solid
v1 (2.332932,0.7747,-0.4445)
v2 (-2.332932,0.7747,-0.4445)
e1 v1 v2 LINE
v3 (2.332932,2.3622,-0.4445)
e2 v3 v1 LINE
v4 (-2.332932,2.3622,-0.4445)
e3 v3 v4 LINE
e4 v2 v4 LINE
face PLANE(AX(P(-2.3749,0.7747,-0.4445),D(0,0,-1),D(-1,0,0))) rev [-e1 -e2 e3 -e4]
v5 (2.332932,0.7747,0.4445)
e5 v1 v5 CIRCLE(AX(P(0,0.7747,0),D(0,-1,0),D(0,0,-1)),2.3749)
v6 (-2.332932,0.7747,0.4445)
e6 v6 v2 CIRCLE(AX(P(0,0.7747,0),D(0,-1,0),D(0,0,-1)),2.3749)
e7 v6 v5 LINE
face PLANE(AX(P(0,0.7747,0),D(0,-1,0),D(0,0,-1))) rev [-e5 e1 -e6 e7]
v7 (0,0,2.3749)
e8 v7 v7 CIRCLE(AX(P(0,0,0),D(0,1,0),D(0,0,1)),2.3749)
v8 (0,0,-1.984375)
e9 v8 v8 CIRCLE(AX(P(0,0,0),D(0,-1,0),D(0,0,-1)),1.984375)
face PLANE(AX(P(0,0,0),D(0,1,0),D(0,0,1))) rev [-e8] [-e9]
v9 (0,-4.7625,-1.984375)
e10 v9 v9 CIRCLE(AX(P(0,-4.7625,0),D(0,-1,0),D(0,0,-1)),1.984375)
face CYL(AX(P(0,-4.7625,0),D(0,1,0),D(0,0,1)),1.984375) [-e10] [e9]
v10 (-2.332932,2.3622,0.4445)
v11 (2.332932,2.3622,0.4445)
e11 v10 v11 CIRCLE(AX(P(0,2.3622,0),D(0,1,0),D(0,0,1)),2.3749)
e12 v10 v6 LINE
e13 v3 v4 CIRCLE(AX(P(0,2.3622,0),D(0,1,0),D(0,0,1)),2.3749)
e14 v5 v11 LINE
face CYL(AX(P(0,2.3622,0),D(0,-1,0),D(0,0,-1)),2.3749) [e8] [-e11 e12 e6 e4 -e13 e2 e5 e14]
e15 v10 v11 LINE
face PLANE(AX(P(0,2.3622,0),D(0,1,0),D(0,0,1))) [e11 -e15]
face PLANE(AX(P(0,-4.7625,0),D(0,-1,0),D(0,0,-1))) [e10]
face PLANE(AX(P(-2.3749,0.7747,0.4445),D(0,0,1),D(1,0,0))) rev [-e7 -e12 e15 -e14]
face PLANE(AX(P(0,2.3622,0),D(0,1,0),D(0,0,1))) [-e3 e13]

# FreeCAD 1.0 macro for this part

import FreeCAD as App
import Part
import Sketcher

V = App.Vector
Q = App.Units.Quantity

doc = App.newDocument("Part")
body = doc.addObject("PartDesign::Body", "Body")

# Sketch on XZ plane
sketch1 = body.newObject("Sketcher::SketchObject", "Sketch")
sketch1.AttachmentSupport = (doc.getObject("XZ_Plane"), [""])
sketch1.MapMode = "FlatFace"
sketch1.addGeometry(Part.Circle(V(0, 0, 0), V(0, 0, 1), 2.4), False)
sketch1.addConstraint(Sketcher.Constraint("Coincident", 0, 3, -1, 1))
sketch1.addConstraint(Sketcher.Constraint("Diameter", 0, Q("0.187 in")))
pad1 = body.newObject("PartDesign::Pad", "Pad")
pad1.Profile = sketch1
pad1.Length = Q("0.093 in")
pad1.Reversed = True

# Sketch on XZ plane
sketch2 = body.newObject("Sketcher::SketchObject", "Sketch001")
sketch2.AttachmentSupport = (doc.getObject("XZ_Plane"), [""])
sketch2.MapMode = "FlatFace"
sketch2.addGeometry(Part.Circle(V(0, 0, 0), V(0, 0, 1), 2), False)
sketch2.addConstraint(Sketcher.Constraint("Coincident", 0, 3, -1, 1))
sketch2.addConstraint(Sketcher.Constraint("Diameter", 0, Q("0.15625 in")))
pad2 = body.newObject("PartDesign::Pad", "Pad001")
pad2.Profile = sketch2
pad2.Length = Q("0.1875 in")

# Sketch on XZ plane
sketch3 = body.newObject("Sketcher::SketchObject", "Sketch002")
sketch3.AttachmentSupport = (doc.getObject("XZ_Plane"), [""])
sketch3.MapMode = "FlatFace"
sketch3.AttachmentOffset = App.Placement(V(0, 0, -0.093 * 25.4), App.Rotation())
sketch3.addGeometry(Part.LineSegment(V(-2.4, -0.4, 0), V(-2.4, 0.4, 0)), False)
sketch3.addGeometry(Part.LineSegment(V(-2.4, 0.4, 0), V(2.4, 0.4, 0)), False)
sketch3.addGeometry(Part.LineSegment(V(2.4, 0.4, 0), V(2.4, -0.4, 0)), False)
sketch3.addGeometry(Part.LineSegment(V(2.4, -0.4, 0), V(-2.4, -0.4, 0)), False)
sketch3.addConstraint(Sketcher.Constraint("Coincident", 0, 2, 1, 1))
sketch3.addConstraint(Sketcher.Constraint("Coincident", 1, 2, 2, 1))
sketch3.addConstraint(Sketcher.Constraint("Coincident", 2, 2, 3, 1))
sketch3.addConstraint(Sketcher.Constraint("Coincident", 3, 2, 0, 1))
sketch3.addConstraint(Sketcher.Constraint("Vertical", 0))
sketch3.addConstraint(Sketcher.Constraint("Horizontal", 1))
sketch3.addConstraint(Sketcher.Constraint("Vertical", 2))
sketch3.addConstraint(Sketcher.Constraint("Horizontal", 3))
sketch3.addConstraint(Sketcher.Constraint("Symmetric", 0, 2, 2, 2, -1, 1))
sketch3.addConstraint(Sketcher.Constraint("DistanceX", 1, 1, 1, 2, Q("0.187 in")))
sketch3.addConstraint(Sketcher.Constraint("DistanceY", 0, 1, 0, 2, Q("0.035 in")))
pocket1 = body.newObject("PartDesign::Pocket", "Pocket")
pocket1.Profile = sketch3
pocket1.Length = Q("0.0625 in")
pocket1.Reversed = True

doc.recompute()
